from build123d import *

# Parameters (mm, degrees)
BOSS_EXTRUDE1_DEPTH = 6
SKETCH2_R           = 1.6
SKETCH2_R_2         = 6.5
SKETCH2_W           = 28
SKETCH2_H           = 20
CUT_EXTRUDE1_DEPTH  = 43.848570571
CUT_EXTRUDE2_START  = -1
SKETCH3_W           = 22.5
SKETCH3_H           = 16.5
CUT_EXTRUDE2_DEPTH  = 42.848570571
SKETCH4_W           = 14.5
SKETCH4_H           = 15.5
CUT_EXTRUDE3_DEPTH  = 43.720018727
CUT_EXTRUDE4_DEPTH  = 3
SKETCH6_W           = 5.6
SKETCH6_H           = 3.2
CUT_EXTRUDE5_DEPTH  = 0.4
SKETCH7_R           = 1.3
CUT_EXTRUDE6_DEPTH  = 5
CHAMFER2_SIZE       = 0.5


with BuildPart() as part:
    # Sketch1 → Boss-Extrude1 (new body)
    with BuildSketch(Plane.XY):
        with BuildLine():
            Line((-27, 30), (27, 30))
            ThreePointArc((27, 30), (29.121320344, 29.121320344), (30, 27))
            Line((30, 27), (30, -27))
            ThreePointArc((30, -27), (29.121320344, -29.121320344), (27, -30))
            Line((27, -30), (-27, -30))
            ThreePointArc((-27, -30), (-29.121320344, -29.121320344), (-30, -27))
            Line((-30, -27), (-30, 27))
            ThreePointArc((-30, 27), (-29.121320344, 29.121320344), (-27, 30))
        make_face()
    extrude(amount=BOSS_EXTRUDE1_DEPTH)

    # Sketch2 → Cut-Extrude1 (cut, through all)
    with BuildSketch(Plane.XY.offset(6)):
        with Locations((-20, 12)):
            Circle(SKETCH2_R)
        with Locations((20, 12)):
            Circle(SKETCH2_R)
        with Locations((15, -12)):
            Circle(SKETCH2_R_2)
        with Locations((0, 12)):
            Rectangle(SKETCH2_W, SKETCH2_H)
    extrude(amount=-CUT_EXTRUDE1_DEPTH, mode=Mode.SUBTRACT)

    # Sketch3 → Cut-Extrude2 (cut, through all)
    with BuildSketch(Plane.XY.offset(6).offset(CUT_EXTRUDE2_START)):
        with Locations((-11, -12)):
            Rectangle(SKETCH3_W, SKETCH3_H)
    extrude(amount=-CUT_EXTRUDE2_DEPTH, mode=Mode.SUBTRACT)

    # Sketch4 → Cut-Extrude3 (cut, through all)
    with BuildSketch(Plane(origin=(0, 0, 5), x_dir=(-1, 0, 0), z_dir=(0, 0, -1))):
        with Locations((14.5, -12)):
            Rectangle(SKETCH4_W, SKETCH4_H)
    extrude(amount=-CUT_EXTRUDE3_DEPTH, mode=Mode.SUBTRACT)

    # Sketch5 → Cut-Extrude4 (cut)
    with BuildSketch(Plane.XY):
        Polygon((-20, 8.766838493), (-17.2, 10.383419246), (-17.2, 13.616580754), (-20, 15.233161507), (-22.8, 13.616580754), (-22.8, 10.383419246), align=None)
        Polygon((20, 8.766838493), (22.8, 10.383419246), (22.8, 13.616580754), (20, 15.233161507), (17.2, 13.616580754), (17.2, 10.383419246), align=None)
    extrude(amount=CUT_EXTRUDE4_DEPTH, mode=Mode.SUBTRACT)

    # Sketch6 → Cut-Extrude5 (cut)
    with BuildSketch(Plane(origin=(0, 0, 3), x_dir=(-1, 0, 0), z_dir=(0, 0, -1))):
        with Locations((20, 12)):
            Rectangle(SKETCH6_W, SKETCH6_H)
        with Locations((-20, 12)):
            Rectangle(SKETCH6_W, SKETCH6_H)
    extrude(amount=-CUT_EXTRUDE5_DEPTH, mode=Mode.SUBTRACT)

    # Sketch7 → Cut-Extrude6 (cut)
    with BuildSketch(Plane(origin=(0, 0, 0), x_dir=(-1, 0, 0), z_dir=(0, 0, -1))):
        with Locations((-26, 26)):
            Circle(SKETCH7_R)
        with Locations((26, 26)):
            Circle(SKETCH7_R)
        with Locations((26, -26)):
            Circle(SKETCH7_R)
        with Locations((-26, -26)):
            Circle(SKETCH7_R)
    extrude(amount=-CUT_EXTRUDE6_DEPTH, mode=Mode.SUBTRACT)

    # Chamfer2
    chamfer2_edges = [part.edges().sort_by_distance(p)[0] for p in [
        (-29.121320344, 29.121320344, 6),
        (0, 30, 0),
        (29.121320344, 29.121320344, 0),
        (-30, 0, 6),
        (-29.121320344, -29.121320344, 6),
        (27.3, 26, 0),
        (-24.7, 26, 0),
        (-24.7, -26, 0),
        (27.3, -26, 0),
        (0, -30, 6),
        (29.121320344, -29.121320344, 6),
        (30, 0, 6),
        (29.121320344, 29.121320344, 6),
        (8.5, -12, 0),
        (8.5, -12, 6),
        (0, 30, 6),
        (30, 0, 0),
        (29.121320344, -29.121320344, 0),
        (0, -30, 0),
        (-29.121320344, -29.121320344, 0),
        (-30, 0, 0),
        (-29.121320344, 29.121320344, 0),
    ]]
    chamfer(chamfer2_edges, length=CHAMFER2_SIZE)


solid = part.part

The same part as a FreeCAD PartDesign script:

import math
import FreeCAD as App
import Part
import Sketcher

V = App.Vector
Q = App.Units.Quantity


def edges_at(feature, points):
    """Names of the edges that pass closest to the given points."""
    edges = feature.Shape.Edges
    near = lambda p: min(range(len(edges)), key=lambda i: edges[i].distToShape(Part.Vertex(*p))[0])
    return sorted({f"Edge{near(p) + 1}" for p in points})


def add_polygon(sketch, points):
    """Adds a closed chain of lines whose ends are joined by coincident constraints."""
    first, n = sketch.GeometryCount, len(points)
    for a, b in zip(points, points[1:] + points[:1]):
        sketch.addGeometry(Part.LineSegment(App.Vector(*a, 0), App.Vector(*b, 0)), False)
    for i in range(n):
        sketch.addConstraint(Sketcher.Constraint("Coincident", first + i, 2, first + (i + 1) % n, 1))

doc = App.newDocument("Part")
body = doc.addObject("PartDesign::Body", "Body")

# Sketch on XY plane
sketch1 = doc.addObject("Sketcher::SketchObject", "Sketch")
body.addObject(sketch1)
sketch1.AttachmentSupport = (doc.XY_Plane, [""])
sketch1.MapMode = "FlatFace"
sketch1.addGeometry(Part.LineSegment(V(27, 30, 0), V(-27, 30, 0)), False)
sketch1.addGeometry(Part.ArcOfCircle(Part.Circle(V(-27, 27, 0), V(0, 0, 1), 3), math.radians(90), math.radians(180)), False)
sketch1.addGeometry(Part.LineSegment(V(-30, 27, 0), V(-30, -27, 0)), False)
sketch1.addGeometry(Part.ArcOfCircle(Part.Circle(V(-27, -27, 0), V(0, 0, 1), 3), math.radians(180), math.radians(270)), False)
sketch1.addGeometry(Part.LineSegment(V(-27, -30, 0), V(27, -30, 0)), False)
sketch1.addGeometry(Part.ArcOfCircle(Part.Circle(V(27, -27, 0), V(0, 0, 1), 3), math.radians(-90), math.radians(0)), False)
sketch1.addGeometry(Part.LineSegment(V(30, -27, 0), V(30, 27, 0)), False)
sketch1.addGeometry(Part.ArcOfCircle(Part.Circle(V(27, 27, 0), V(0, 0, 1), 3), math.radians(0), math.radians(90)), False)
sketch1.addConstraint(Sketcher.Constraint("Tangent", 0, 2, 1, 1))
sketch1.addConstraint(Sketcher.Constraint("Tangent", 1, 2, 2, 1))
sketch1.addConstraint(Sketcher.Constraint("Tangent", 2, 2, 3, 1))
sketch1.addConstraint(Sketcher.Constraint("Tangent", 3, 2, 4, 1))
sketch1.addConstraint(Sketcher.Constraint("Tangent", 4, 2, 5, 1))
sketch1.addConstraint(Sketcher.Constraint("Tangent", 5, 2, 6, 1))
sketch1.addConstraint(Sketcher.Constraint("Tangent", 6, 2, 7, 1))
sketch1.addConstraint(Sketcher.Constraint("Tangent", 7, 2, 0, 1))
sketch1.addConstraint(Sketcher.Constraint("Horizontal", 0))
sketch1.addConstraint(Sketcher.Constraint("Vertical", 2))
sketch1.addConstraint(Sketcher.Constraint("Horizontal", 4))
sketch1.addConstraint(Sketcher.Constraint("Vertical", 6))
sketch1.addConstraint(Sketcher.Constraint("Equal", 1, 3))
sketch1.addConstraint(Sketcher.Constraint("Equal", 3, 5))
sketch1.addConstraint(Sketcher.Constraint("Equal", 5, 7))
sketch1.addConstraint(Sketcher.Constraint("Symmetric", 1, 3, 5, 3, -1, 1))
sketch1.addConstraint(Sketcher.Constraint("Equal", 4, 2))
sketch1.addConstraint(Sketcher.Constraint("Radius", 1, Q("3 mm")))
sketch1.addConstraint(Sketcher.Constraint("DistanceX", 0, 2, 0, 1, Q("54 mm")))
pad1 = doc.addObject("PartDesign::Pad", "Pad")
body.addObject(pad1)
pad1.Profile = sketch1
pad1.Length = 6

# Sketch on XY plane
sketch2 = doc.addObject("Sketcher::SketchObject", "Sketch001")
body.addObject(sketch2)
sketch2.AttachmentSupport = (doc.XY_Plane, [""])
sketch2.MapMode = "FlatFace"
sketch2.AttachmentOffset = App.Placement(V(0, 0, 6), App.Rotation())
sketch2.addGeometry(Part.Circle(V(-20, 12, 0), V(0, 0, 1), 1.6), False)  # 0
sketch2.addGeometry(Part.Circle(V(20, 12, 0), V(0, 0, 1), 1.6), False)  # 1
sketch2.addGeometry(Part.Circle(V(15, -12, 0), V(0, 0, 1), 6.5), False)  # 2
add_polygon(sketch2, [(-14, 22), (-14, 2), (14, 2), (14, 22)])  # lines 3-6
sketch2.addConstraint(Sketcher.Constraint("Vertical", 3))
sketch2.addConstraint(Sketcher.Constraint("Horizontal", 4))
sketch2.addConstraint(Sketcher.Constraint("Vertical", 5))
sketch2.addConstraint(Sketcher.Constraint("Horizontal", 6))
sketch2.addConstraint(Sketcher.Constraint("Equal", 0, 1))
sketch2.addConstraint(Sketcher.Constraint("Symmetric", 0, 3, 1, 3, -2))
sketch2.addConstraint(Sketcher.Constraint("Diameter", 2, Q("13 mm")))
sketch2.addConstraint(Sketcher.Constraint("Diameter", 0, Q("3.2 mm")))
sketch2.addConstraint(Sketcher.Constraint("DistanceX", 4, 1, 4, 2, Q("28 mm")))
sketch2.addConstraint(Sketcher.Constraint("DistanceY", 3, 2, 3, 1, Q("20 mm")))
sketch2.addConstraint(Sketcher.Constraint("DistanceX", 0, 3, -1, 1, Q("20 mm")))
sketch2.addConstraint(Sketcher.Constraint("DistanceY", -1, 1, 0, 3, Q("12 mm")))
sketch2.addConstraint(Sketcher.Constraint("DistanceX", -1, 1, 2, 3, Q("15 mm")))
sketch2.addConstraint(Sketcher.Constraint("DistanceY", 2, 3, -1, 1, Q("12 mm")))
sketch2.addConstraint(Sketcher.Constraint("DistanceX", 3, 2, -1, 1, Q("14 mm")))
sketch2.addConstraint(Sketcher.Constraint("DistanceY", -1, 1, 3, 2, Q("2 mm")))
pocket1 = doc.addObject("PartDesign::Pocket", "Pocket")
body.addObject(pocket1)
pocket1.Profile = sketch2
pocket1.Type = "ThroughAll"

# Sketch on XY plane
sketch3 = doc.addObject("Sketcher::SketchObject", "Sketch002")
body.addObject(sketch3)
sketch3.AttachmentSupport = (doc.XY_Plane, [""])
sketch3.MapMode = "FlatFace"
sketch3.AttachmentOffset = App.Placement(V(0, 0, 5), App.Rotation())
add_polygon(sketch3, [(-22, -4), (-22, -20), (0, -20), (0, -4)])  # lines 0-3
sketch3.addConstraint(Sketcher.Constraint("Vertical", 0))
sketch3.addConstraint(Sketcher.Constraint("Horizontal", 1))
sketch3.addConstraint(Sketcher.Constraint("Vertical", 2))
sketch3.addConstraint(Sketcher.Constraint("Horizontal", 3))
sketch3.addConstraint(Sketcher.Constraint("DistanceX", 1, 1, 1, 2, Q("22.5 mm")))
sketch3.addConstraint(Sketcher.Constraint("DistanceY", 0, 2, 0, 1, Q("16.5 mm")))
sketch3.addConstraint(Sketcher.Constraint("DistanceX", 0, 2, -1, 1, Q("22.25 mm")))
sketch3.addConstraint(Sketcher.Constraint("DistanceY", 0, 2, -1, 1, Q("20.25 mm")))
pocket2 = doc.addObject("PartDesign::Pocket", "Pocket001")
body.addObject(pocket2)
pocket2.Profile = sketch3
pocket2.Type = "ThroughAll"

# Sketch on XY plane
sketch4 = doc.addObject("Sketcher::SketchObject", "Sketch003")
body.addObject(sketch4)
sketch4.AttachmentSupport = (doc.XY_Plane, [""])
sketch4.MapMode = "FlatFace"
sketch4.AttachmentOffset = App.Placement(V(0, 0, 5), App.Rotation())
add_polygon(sketch4, [(-7, -4), (-7, -20), (-22, -20), (-22, -4)])  # lines 0-3
sketch4.addConstraint(Sketcher.Constraint("Vertical", 0))
sketch4.addConstraint(Sketcher.Constraint("Horizontal", 1))
sketch4.addConstraint(Sketcher.Constraint("Vertical", 2))
sketch4.addConstraint(Sketcher.Constraint("Horizontal", 3))
sketch4.addConstraint(Sketcher.Constraint("DistanceX", 1, 2, 1, 1, Q("14.5 mm")))
sketch4.addConstraint(Sketcher.Constraint("DistanceY", 0, 2, 0, 1, Q("15.5 mm")))
sketch4.addConstraint(Sketcher.Constraint("DistanceX", 0, 2, -1, 1, Q("7.25 mm")))
sketch4.addConstraint(Sketcher.Constraint("DistanceY", 0, 2, -1, 1, Q("19.75 mm")))
pocket3 = doc.addObject("PartDesign::Pocket", "Pocket002")
body.addObject(pocket3)
pocket3.Profile = sketch4
pocket3.Type = "ThroughAll"
pocket3.Reversed = True

# Sketch on XY plane
sketch5 = doc.addObject("Sketcher::SketchObject", "Sketch004")
body.addObject(sketch5)
sketch5.AttachmentSupport = (doc.XY_Plane, [""])
sketch5.MapMode = "FlatFace"
add_polygon(sketch5, [(-20, 8.8), (-17.2, 10.4), (-17.2, 13.6), (-20, 15.2), (-22.8, 13.6), (-22.8, 10.4)])  # lines 0-5
add_polygon(sketch5, [(20, 8.8), (22.8, 10.4), (22.8, 13.6), (20, 15.2), (17.2, 13.6), (17.2, 10.4)])  # lines 6-11
sketch5.addConstraint(Sketcher.Constraint("Vertical", 1))
sketch5.addConstraint(Sketcher.Constraint("Vertical", 4))
sketch5.addConstraint(Sketcher.Constraint("Vertical", 7))
sketch5.addConstraint(Sketcher.Constraint("Vertical", 10))
sketch5.addConstraint(Sketcher.Constraint("Symmetric", 4, 2, 6, 2, -2))
sketch5.addConstraint(Sketcher.Constraint("Symmetric", 2, 2, 8, 2, -2))
sketch5.addConstraint(Sketcher.Constraint("Symmetric", 1, 2, 9, 2, -2))
sketch5.addConstraint(Sketcher.Constraint("Symmetric", 5, 2, 11, 2, -2))
sketch5.addConstraint(Sketcher.Constraint("Parallel", 0, 3))
sketch5.addConstraint(Sketcher.Constraint("Parallel", 2, 5))
sketch5.addConstraint(Sketcher.Constraint("Parallel", 3, 6))
sketch5.addConstraint(Sketcher.Constraint("Parallel", 5, 8))
sketch5.addConstraint(Sketcher.Constraint("Parallel", 8, 11))
sketch5.addConstraint(Sketcher.Constraint("Horizontal", 1, 2, 3, 2))
sketch5.addConstraint(Sketcher.Constraint("Horizontal", 0, 2, 4, 2))
sketch5.addConstraint(Sketcher.Constraint("Angle", 0, Q("30 deg")))
sketch5.addConstraint(Sketcher.Constraint("DistanceX", 2, 2, -1, 1, Q("20 mm")))
sketch5.addConstraint(Sketcher.Constraint("DistanceX", 0, 2, -1, 1, Q("17.2 mm")))
sketch5.addConstraint(Sketcher.Constraint("DistanceY", 1, 1, 1, 2, Q("3.233162 mm")))
sketch5.addConstraint(Sketcher.Constraint("DistanceY", -1, 1, 0, 2, Q("10.383419 mm")))
pocket4 = doc.addObject("PartDesign::Pocket", "Pocket003")
body.addObject(pocket4)
pocket4.Profile = sketch5
pocket4.Length = 3
pocket4.Reversed = True

# Sketch on XY plane
sketch6 = doc.addObject("Sketcher::SketchObject", "Sketch005")
body.addObject(sketch6)
sketch6.AttachmentSupport = (doc.XY_Plane, [""])
sketch6.MapMode = "FlatFace"
sketch6.AttachmentOffset = App.Placement(V(0, 0, 3), App.Rotation())
add_polygon(sketch6, [(-17.2, 13.6), (-17.2, 10.4), (-22.8, 10.4), (-22.8, 13.6)])  # lines 0-3
add_polygon(sketch6, [(22.8, 13.6), (22.8, 10.4), (17.2, 10.4), (17.2, 13.6)])  # lines 4-7
sketch6.addConstraint(Sketcher.Constraint("Vertical", 0))
sketch6.addConstraint(Sketcher.Constraint("Horizontal", 1))
sketch6.addConstraint(Sketcher.Constraint("Vertical", 2))
sketch6.addConstraint(Sketcher.Constraint("Horizontal", 3))
sketch6.addConstraint(Sketcher.Constraint("Vertical", 4))
sketch6.addConstraint(Sketcher.Constraint("Horizontal", 5))
sketch6.addConstraint(Sketcher.Constraint("Vertical", 6))
sketch6.addConstraint(Sketcher.Constraint("Horizontal", 7))
sketch6.addConstraint(Sketcher.Constraint("Symmetric", 1, 2, 4, 2, -2))
sketch6.addConstraint(Sketcher.Constraint("Symmetric", 3, 2, 6, 2, -2))
sketch6.addConstraint(Sketcher.Constraint("DistanceX", 1, 2, 1, 1, Q("5.6 mm")))
sketch6.addConstraint(Sketcher.Constraint("DistanceY", 0, 2, 0, 1, Q("3.2 mm")))
sketch6.addConstraint(Sketcher.Constraint("DistanceX", 0, 2, 4, 2, Q("40 mm")))
sketch6.addConstraint(Sketcher.Constraint("DistanceY", -1, 1, 0, 2, Q("10.4 mm")))
pocket5 = doc.addObject("PartDesign::Pocket", "Pocket004")
body.addObject(pocket5)
pocket5.Profile = sketch6
pocket5.Length = 0.4
pocket5.Reversed = True

# Sketch on XY plane
sketch7 = doc.addObject("Sketcher::SketchObject", "Sketch006")
body.addObject(sketch7)
sketch7.AttachmentSupport = (doc.XY_Plane, [""])
sketch7.MapMode = "FlatFace"
sketch7.addGeometry(Part.Circle(V(26, 26, 0), V(0, 0, 1), 1.3), False)
sketch7.addGeometry(Part.Circle(V(-26, 26, 0), V(0, 0, 1), 1.3), False)
sketch7.addGeometry(Part.Circle(V(-26, -26, 0), V(0, 0, 1), 1.3), False)
sketch7.addGeometry(Part.Circle(V(26, -26, 0), V(0, 0, 1), 1.3), False)
sketch7.addConstraint(Sketcher.Constraint("Equal", 0, 1))
sketch7.addConstraint(Sketcher.Constraint("Equal", 1, 2))
sketch7.addConstraint(Sketcher.Constraint("Equal", 2, 3))
sketch7.addConstraint(Sketcher.Constraint("Symmetric", 0, 3, 2, 3, -1, 1))
sketch7.addConstraint(Sketcher.Constraint("Symmetric", 1, 3, 3, 3, -1, 1))
sketch7.addConstraint(Sketcher.Constraint("Symmetric", 0, 3, 1, 3, -2))
sketch7.addConstraint(Sketcher.Constraint("Diameter", 0, Q("2.6 mm")))
sketch7.addConstraint(Sketcher.Constraint("DistanceX", -1, 1, 0, 3, Q("26 mm")))
sketch7.addConstraint(Sketcher.Constraint("DistanceY", -1, 1, 0, 3, Q("26 mm")))
pocket6 = doc.addObject("PartDesign::Pocket", "Pocket005")
body.addObject(pocket6)
pocket6.Profile = sketch7
pocket6.Length = 5
pocket6.Reversed = True
doc.recompute()

chamfer = doc.addObject("PartDesign::Chamfer", "Chamfer")
body.addObject(chamfer)
chamfer.Base = (pocket6, edges_at(pocket6, [
    (-29.121, 29.121, 6),
    (0, 30, 0),
    (29.121, 29.121, 0),
    (-30, 0, 6),
    (-29.121, -29.121, 6),
    (27.3, 26, 0),
    (-24.7, 26, 0),
    (-24.7, -26, 0),
    (27.3, -26, 0),
    (0, -30, 6),
    (29.121, -29.121, 6),
    (30, 0, 6),
    (29.121, 29.121, 6),
    (8.5, -12, 0),
    (8.5, -12, 6),
    (0, 30, 6),
    (30, 0, 0),
    (29.121, -29.121, 0),
    (0, -30, 0),
    (-29.121, -29.121, 0),
    (-30, 0, 0),
    (-29.121, 29.121, 0),
]))
chamfer.Size = 0.5

doc.recompute()
